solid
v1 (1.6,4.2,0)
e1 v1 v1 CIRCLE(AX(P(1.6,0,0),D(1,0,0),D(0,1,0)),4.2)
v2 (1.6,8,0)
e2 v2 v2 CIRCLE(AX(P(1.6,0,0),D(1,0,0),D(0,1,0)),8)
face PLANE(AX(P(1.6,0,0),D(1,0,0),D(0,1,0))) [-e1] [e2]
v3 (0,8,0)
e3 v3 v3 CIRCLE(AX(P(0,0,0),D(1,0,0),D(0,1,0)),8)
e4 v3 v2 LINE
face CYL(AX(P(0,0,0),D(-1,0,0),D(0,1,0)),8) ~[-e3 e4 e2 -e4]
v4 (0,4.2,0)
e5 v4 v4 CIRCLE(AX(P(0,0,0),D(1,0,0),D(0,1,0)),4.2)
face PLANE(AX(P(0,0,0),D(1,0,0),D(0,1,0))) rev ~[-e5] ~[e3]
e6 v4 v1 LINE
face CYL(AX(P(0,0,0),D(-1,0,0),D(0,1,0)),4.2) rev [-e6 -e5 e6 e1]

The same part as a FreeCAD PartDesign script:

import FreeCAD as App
import Part
import Sketcher
from FreeCAD import Vector

doc = App.newDocument("Part")
body = doc.addObject("PartDesign::Body", "Body")

# Sketch on YZ plane
sketch1 = body.newObject("Sketcher::SketchObject", "Sketch")
sketch1.AttachmentSupport = (doc.getObject("YZ_Plane"), [""])
sketch1.MapMode = "FlatFace"
sketch1.addGeometry(Part.Circle(Vector(0, 0, 0), Vector(0, 0, 1), 8), False)
sketch1.addGeometry(Part.Circle(Vector(0, 0, 0), Vector(0, 0, 1), 4.2), False)
sketch1.addConstraint(Sketcher.Constraint("Coincident", 0, 3, -1, 1))
sketch1.addConstraint(Sketcher.Constraint("Coincident", 1, 3, -1, 1))
sketch1.addConstraint(Sketcher.Constraint("Diameter", 0, 16.0))
sketch1.addConstraint(Sketcher.Constraint("Diameter", 1, 8.4))
pad1 = body.newObject("PartDesign::Pad", "Pad")
pad1.Profile = sketch1
pad1.Length = 1.6

doc.recompute()
